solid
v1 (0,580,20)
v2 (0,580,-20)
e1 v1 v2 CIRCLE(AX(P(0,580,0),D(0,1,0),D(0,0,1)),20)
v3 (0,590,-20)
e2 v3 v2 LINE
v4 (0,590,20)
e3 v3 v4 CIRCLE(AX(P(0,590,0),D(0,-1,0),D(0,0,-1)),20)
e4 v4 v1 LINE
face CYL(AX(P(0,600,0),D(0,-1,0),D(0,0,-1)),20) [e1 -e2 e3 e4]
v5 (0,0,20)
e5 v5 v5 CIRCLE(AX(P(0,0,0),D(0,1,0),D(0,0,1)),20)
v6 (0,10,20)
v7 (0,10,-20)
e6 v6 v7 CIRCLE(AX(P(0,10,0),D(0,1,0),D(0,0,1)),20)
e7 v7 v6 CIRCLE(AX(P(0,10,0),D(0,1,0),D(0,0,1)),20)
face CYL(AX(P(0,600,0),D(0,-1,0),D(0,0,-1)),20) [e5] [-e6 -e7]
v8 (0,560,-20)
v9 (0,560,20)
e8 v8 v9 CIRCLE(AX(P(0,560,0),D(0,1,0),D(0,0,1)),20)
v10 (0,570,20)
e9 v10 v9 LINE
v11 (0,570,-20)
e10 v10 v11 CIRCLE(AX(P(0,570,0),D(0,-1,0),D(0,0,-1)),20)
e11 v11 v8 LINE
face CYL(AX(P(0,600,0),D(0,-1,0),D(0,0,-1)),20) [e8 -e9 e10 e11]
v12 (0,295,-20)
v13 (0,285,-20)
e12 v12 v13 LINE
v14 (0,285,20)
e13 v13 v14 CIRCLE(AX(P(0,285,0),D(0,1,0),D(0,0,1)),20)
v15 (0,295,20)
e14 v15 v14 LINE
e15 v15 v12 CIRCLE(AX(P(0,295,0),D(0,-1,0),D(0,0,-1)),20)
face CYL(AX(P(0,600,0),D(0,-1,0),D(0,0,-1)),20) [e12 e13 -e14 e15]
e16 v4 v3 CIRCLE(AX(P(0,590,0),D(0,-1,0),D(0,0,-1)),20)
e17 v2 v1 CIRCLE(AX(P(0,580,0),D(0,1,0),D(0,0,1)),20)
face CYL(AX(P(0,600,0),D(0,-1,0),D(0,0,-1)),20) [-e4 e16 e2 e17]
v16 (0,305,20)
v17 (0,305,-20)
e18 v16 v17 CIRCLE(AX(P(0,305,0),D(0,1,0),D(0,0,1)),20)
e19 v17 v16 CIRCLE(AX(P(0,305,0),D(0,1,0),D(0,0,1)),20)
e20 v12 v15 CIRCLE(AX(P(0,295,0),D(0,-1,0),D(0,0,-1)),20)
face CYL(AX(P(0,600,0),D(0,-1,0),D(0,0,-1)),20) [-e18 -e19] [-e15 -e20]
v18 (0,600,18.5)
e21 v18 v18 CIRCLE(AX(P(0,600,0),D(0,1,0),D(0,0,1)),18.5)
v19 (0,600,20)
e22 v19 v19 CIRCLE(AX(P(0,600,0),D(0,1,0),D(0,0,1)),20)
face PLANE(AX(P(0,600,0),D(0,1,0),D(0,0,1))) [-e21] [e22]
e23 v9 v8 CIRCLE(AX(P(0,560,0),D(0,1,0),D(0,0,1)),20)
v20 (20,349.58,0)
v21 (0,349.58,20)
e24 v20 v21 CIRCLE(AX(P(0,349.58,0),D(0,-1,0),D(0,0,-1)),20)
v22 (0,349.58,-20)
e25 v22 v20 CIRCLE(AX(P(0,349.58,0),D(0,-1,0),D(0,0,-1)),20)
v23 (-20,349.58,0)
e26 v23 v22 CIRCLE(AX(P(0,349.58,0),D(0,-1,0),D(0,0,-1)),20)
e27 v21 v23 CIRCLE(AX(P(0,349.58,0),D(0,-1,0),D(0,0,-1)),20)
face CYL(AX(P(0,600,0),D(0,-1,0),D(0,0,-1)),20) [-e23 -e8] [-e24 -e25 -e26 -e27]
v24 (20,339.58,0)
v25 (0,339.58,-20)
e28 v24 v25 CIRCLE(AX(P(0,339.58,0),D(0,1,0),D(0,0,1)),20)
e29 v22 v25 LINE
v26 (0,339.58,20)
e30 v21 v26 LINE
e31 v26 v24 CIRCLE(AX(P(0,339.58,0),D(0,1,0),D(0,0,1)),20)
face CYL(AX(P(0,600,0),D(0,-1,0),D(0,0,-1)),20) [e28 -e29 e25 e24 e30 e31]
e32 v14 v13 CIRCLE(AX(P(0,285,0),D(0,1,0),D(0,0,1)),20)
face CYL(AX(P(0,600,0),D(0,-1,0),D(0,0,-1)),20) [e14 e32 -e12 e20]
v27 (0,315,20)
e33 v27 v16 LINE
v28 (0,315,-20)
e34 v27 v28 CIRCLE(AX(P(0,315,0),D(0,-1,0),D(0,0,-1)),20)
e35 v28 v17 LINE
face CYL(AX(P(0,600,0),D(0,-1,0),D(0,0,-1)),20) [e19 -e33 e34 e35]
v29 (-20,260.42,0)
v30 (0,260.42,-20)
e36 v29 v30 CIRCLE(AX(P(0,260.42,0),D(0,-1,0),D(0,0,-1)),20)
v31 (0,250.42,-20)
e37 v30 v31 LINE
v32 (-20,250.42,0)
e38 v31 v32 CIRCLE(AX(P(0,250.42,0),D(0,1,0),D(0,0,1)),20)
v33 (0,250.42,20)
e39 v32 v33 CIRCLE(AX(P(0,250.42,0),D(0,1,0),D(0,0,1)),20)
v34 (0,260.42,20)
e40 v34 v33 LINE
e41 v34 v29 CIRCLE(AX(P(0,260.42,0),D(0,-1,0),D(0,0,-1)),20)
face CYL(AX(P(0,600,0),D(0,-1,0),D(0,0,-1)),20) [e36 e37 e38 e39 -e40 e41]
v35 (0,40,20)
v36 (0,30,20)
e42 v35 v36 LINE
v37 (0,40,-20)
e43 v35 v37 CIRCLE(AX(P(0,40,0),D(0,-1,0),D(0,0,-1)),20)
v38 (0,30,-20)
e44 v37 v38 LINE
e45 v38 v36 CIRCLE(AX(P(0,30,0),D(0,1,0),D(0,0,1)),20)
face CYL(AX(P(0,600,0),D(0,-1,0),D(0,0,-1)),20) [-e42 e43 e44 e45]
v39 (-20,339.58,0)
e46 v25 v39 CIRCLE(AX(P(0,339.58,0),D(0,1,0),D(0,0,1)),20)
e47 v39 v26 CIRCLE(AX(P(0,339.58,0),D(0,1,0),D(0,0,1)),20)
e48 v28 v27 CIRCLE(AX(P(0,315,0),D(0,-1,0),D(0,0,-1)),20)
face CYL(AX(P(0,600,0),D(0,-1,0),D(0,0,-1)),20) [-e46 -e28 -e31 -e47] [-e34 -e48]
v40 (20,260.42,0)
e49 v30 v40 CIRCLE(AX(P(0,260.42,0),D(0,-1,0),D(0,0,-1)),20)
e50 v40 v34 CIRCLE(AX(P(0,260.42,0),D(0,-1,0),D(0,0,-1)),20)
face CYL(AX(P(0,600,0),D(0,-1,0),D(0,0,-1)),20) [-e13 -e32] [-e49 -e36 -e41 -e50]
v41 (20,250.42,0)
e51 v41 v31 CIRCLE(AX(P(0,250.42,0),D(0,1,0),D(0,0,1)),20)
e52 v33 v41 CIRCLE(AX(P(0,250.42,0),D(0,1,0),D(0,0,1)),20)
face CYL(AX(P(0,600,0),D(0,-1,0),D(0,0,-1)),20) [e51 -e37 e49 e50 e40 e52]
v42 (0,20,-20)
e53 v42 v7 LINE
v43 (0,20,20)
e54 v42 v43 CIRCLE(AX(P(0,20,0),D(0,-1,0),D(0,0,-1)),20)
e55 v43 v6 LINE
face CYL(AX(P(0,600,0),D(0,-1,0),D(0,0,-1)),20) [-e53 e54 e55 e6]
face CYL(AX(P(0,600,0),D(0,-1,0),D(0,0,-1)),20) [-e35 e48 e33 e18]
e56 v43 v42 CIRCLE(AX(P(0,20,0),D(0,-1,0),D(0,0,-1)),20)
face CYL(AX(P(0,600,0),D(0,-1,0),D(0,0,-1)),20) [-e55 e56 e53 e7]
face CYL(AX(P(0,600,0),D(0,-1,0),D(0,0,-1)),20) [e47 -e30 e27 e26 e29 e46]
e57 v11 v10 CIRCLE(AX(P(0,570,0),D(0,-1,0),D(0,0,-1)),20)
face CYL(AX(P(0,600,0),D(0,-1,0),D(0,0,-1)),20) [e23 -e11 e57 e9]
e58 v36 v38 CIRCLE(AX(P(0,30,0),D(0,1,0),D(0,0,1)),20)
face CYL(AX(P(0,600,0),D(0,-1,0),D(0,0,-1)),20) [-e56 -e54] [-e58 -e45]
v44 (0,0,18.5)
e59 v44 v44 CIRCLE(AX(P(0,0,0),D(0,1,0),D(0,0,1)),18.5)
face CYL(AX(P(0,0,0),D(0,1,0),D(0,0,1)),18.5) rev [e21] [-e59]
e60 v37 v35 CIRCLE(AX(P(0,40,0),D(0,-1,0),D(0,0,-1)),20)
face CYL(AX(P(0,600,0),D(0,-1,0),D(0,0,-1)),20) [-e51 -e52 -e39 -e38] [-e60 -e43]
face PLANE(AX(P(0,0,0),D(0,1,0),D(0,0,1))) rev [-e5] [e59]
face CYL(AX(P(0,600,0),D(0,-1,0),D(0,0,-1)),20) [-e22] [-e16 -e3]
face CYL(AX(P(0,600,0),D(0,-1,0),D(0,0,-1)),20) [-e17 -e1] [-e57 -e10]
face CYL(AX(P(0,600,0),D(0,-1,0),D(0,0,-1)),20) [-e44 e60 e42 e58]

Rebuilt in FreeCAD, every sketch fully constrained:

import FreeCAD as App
import Part
import Sketcher

doc = App.newDocument("Part")
params = doc.addObject("Spreadsheet::Sheet", "Params")
for row, (alias, value) in enumerate([
    ("sketch1_diameter", "40 mm"),
    ("pad1_length", "600 mm"),
    ("sketch2_diameter", "37 mm"),
    ("pocket1_length", "600 mm"),
], start=1):
    params.set(f"A{row}", alias)
    params.set(f"B{row}", "=" + value)
    params.setAlias(f"B{row}", alias)

body = doc.addObject("PartDesign::Body", "Body")

# Sketch on XZ plane
sketch1 = body.newObject("Sketcher::SketchObject", "Sketch")
sketch1.AttachmentSupport = (doc.getObject("XZ_Plane"), [""])
sketch1.MapMode = "FlatFace"
sketch1.addGeometry(Part.Circle(App.Vector(0, 0, 0), App.Vector(0, 0, 1), 20), False)
sketch1.addConstraint(Sketcher.Constraint("Coincident", 0, 3, -1, 1))
sketch1.addConstraint(Sketcher.Constraint("Diameter", 0, 40.0))
sketch1.setExpression("Constraints[1]", "Params.sketch1_diameter")
pad1 = body.newObject("PartDesign::Pad", "Pad")
pad1.Profile = sketch1
pad1.setExpression("Length", "Params.pad1_length")
pad1.Reversed = True

# Sketch on XZ plane
sketch2 = body.newObject("Sketcher::SketchObject", "Sketch001")
sketch2.AttachmentSupport = (doc.getObject("XZ_Plane"), [""])
sketch2.MapMode = "FlatFace"
sketch2.AttachmentOffset = App.Placement(App.Vector(0, 0, -600), App.Rotation())
sketch2.addGeometry(Part.Circle(App.Vector(0, 0, 0), App.Vector(0, 0, 1), 18), False)
sketch2.addConstraint(Sketcher.Constraint("Coincident", 0, 3, -1, 1))
sketch2.addConstraint(Sketcher.Constraint("Diameter", 0, 37.0))
sketch2.setExpression("Constraints[1]", "Params.sketch2_diameter")
pocket1 = body.newObject("PartDesign::Pocket", "Pocket")
pocket1.Profile = sketch2
pocket1.setExpression("Length", "Params.pocket1_length")
pocket1.Reversed = True

doc.recompute()
